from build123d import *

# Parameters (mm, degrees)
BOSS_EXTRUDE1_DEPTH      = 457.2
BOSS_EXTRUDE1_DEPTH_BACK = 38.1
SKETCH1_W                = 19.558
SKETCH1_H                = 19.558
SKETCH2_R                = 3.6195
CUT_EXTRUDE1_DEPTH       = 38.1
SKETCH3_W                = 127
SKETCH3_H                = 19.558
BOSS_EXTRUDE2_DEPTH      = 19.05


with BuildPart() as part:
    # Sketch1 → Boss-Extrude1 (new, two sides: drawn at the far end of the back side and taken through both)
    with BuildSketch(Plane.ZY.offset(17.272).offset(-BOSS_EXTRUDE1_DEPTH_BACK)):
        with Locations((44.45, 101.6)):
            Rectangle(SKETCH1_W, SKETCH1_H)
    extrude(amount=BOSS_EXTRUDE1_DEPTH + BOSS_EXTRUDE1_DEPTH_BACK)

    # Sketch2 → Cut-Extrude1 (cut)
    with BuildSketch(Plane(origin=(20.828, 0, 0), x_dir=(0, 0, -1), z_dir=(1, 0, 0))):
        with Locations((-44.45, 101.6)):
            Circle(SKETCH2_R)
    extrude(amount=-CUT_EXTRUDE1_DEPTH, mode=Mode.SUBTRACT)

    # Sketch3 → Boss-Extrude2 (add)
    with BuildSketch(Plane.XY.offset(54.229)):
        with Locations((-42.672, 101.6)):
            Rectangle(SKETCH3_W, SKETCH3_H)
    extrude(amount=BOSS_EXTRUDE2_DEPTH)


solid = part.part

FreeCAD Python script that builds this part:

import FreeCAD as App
import Part
import Sketcher
Q = App.Units.Quantity


def add_polygon(sketch, points):
    """Adds a closed chain of lines whose ends are joined by coincident constraints."""
    first, n = sketch.GeometryCount, len(points)
    for a, b in zip(points, points[1:] + points[:1]):
        sketch.addGeometry(Part.LineSegment(App.Vector(*a, 0), App.Vector(*b, 0)), False)
    for i in range(n):
        sketch.addConstraint(Sketcher.Constraint("Coincident", first + i, 2, first + (i + 1) % n, 1))

doc = App.newDocument("Part")
body = doc.addObject("PartDesign::Body", "Body")

sketch1 = body.newObject("Sketcher::SketchObject", "Sketch")
sketch1.AttachmentSupport = (doc.getObject("YZ_Plane"), [""])
sketch1.MapMode = "FlatFace"
sketch1.AttachmentOffset = App.Placement(App.Vector(0, 0, -0.68 * 25.4), App.Rotation())
add_polygon(sketch1, [(111, 35), (92, 35), (92, 54), (111, 54)])
sketch1.addConstraint(Sketcher.Constraint("Horizontal", 0))
sketch1.addConstraint(Sketcher.Constraint("Vertical", 1))
sketch1.addConstraint(Sketcher.Constraint("Horizontal", 2))
sketch1.addConstraint(Sketcher.Constraint("Vertical", 3))
sketch1.addConstraint(Sketcher.Constraint("Equal", 2, 1))
sketch1.addConstraint(Sketcher.Constraint("DistanceX", 0, 2, 0, 1, Q("0.77 in")))
sketch1.addConstraint(Sketcher.Constraint("DistanceX", -1, 1, 0, 2, Q("3.615 in")))
sketch1.addConstraint(Sketcher.Constraint("DistanceY", -1, 1, 0, 2, Q("1.365 in")))
pad1 = body.newObject("PartDesign::Pad", "Pad")
pad1.Profile = sketch1
pad1.Type = "TwoLengths"
pad1.Length = Q("18 in")
pad1.Length2 = Q("1.5 in")
pad1.Reversed = True

sketch2 = body.newObject("Sketcher::SketchObject", "Sketch001")
sketch2.AttachmentSupport = (doc.getObject("YZ_Plane"), [""])
sketch2.MapMode = "FlatFace"
sketch2.AttachmentOffset = App.Placement(App.Vector(0, 0, 0.82 * 25.4), App.Rotation())
sketch2.addGeometry(Part.Circle(App.Vector(101.6, 44.5, 0), App.Vector(0, 0, 1), 3.6), False)
sketch2.addConstraint(Sketcher.Constraint("Diameter", 0, Q("0.285 in")))
sketch2.addConstraint(Sketcher.Constraint("DistanceX", -1, 1, 0, 3, Q("4 in")))
sketch2.addConstraint(Sketcher.Constraint("DistanceY", -1, 1, 0, 3, Q("1.75 in")))
pocket1 = body.newObject("PartDesign::Pocket", "Pocket")
pocket1.Profile = sketch2
pocket1.Length = Q("1.5 in")

sketch3 = body.newObject("Sketcher::SketchObject", "Sketch002")
sketch3.AttachmentSupport = (doc.getObject("XY_Plane"), [""])
sketch3.MapMode = "FlatFace"
sketch3.AttachmentOffset = App.Placement(App.Vector(0, 0, 2.135 * 25.4), App.Rotation())
add_polygon(sketch3, [(-106, 111), (-106, 92), (21, 92), (21, 111)])
sketch3.addConstraint(Sketcher.Constraint("Vertical", 0))
sketch3.addConstraint(Sketcher.Constraint("Horizontal", 1))
sketch3.addConstraint(Sketcher.Constraint("Vertical", 2))
sketch3.addConstraint(Sketcher.Constraint("Horizontal", 3))
sketch3.addConstraint(Sketcher.Constraint("DistanceX", 1, 1, 1, 2, Q("5 in")))
sketch3.addConstraint(Sketcher.Constraint("DistanceY", 0, 2, 0, 1, Q("0.77 in")))
sketch3.addConstraint(Sketcher.Constraint("DistanceX", 0, 2, -1, 1, Q("4.18 in")))
sketch3.addConstraint(Sketcher.Constraint("DistanceY", -1, 1, 0, 2, Q("3.615 in")))
pad2 = body.newObject("PartDesign::Pad", "Pad001")
pad2.Profile = sketch3
pad2.Length = Q("0.75 in")

doc.recompute()
